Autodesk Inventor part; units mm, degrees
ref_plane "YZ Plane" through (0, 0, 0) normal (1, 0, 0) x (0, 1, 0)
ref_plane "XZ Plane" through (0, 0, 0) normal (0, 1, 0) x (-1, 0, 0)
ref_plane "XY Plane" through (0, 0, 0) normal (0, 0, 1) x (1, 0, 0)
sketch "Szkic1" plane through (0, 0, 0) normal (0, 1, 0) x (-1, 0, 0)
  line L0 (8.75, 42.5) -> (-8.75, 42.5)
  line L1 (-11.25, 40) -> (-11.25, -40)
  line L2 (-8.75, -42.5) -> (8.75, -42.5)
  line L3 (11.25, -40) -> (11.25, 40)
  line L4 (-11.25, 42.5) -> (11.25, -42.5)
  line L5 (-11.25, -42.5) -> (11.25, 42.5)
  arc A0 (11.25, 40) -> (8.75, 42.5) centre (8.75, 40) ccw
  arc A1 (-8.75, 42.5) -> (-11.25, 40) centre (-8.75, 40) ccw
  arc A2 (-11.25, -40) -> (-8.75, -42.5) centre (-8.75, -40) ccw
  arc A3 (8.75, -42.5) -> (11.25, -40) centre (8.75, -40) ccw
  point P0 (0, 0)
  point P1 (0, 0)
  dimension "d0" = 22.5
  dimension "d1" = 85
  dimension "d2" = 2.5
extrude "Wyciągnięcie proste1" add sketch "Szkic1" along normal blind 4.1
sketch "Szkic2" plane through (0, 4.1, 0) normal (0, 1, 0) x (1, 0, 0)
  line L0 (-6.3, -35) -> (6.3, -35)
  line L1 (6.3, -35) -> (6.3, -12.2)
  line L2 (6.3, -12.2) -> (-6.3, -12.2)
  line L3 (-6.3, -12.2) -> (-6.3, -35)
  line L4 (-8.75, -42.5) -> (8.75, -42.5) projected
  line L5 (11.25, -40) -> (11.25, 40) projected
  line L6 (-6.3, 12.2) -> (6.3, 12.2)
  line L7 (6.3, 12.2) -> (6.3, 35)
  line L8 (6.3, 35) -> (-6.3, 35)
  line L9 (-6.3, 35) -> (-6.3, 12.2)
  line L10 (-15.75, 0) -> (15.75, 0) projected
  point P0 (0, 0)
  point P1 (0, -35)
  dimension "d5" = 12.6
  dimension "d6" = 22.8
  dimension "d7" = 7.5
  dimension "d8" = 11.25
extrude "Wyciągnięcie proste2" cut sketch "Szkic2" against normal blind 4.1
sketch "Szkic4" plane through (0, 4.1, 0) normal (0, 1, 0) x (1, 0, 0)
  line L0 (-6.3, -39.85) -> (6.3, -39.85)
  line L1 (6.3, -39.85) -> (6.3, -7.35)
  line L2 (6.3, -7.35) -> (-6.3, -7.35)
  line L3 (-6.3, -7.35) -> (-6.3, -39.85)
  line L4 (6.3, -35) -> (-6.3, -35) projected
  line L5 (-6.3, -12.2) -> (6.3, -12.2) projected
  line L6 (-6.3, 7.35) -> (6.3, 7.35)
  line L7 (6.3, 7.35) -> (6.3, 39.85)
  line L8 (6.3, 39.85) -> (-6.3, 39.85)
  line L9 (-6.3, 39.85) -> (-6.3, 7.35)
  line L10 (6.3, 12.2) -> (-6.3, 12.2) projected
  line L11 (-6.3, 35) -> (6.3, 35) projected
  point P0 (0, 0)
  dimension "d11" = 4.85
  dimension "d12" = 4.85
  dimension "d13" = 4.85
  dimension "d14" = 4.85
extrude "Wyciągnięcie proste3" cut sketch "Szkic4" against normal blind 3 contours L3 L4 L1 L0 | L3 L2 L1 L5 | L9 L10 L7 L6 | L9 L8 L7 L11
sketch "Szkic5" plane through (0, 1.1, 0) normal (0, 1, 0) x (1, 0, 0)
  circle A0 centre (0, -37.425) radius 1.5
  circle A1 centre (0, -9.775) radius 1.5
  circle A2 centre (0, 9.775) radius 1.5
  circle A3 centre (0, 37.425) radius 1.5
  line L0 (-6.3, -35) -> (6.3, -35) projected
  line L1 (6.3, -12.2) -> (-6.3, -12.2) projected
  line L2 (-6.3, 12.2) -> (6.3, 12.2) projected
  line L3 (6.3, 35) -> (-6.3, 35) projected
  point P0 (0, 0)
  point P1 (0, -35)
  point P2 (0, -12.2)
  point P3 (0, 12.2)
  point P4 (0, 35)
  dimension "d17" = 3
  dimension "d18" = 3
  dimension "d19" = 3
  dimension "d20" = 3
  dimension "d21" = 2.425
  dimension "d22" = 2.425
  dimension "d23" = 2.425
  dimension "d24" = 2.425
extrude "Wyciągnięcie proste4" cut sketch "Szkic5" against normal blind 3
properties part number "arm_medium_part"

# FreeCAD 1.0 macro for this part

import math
import FreeCAD as App
import Part
import Sketcher

doc = App.newDocument("Part")
body = doc.addObject("PartDesign::Body", "Body")

# Sketch on XZ plane
sketch1 = doc.addObject("Sketcher::SketchObject", "Sketch")
body.addObject(sketch1)
sketch1.AttachmentSupport = (doc.XZ_Plane, [""])
sketch1.MapMode = "FlatFace"
sketch1.addGeometry([
    Part.LineSegment(App.Vector(-8.8, 42.5, 0), App.Vector(8.8, 42.5, 0)),  # 0
    Part.ArcOfCircle(Part.Circle(App.Vector(8.8, 40, 0), App.Vector(0, 0, 1), 2.5), math.radians(0), math.radians(90)),  # 1
    Part.LineSegment(App.Vector(11.2, 40, 0), App.Vector(11.2, -40, 0)),  # 2
    Part.ArcOfCircle(Part.Circle(App.Vector(8.8, -40, 0), App.Vector(0, 0, 1), 2.5), math.radians(-90), math.radians(0)),  # 3
    Part.LineSegment(App.Vector(8.8, -42.5, 0), App.Vector(-8.8, -42.5, 0)),  # 4
    Part.ArcOfCircle(Part.Circle(App.Vector(-8.8, -40, 0), App.Vector(0, 0, 1), 2.5), math.radians(180), math.radians(270)),  # 5
    Part.LineSegment(App.Vector(-11.2, -40, 0), App.Vector(-11.2, 40, 0)),  # 6
    Part.ArcOfCircle(Part.Circle(App.Vector(-8.8, 40, 0), App.Vector(0, 0, 1), 2.5), math.radians(90), math.radians(180)),  # 7
], False)
sketch1.addConstraint([
    Sketcher.Constraint("Tangent", 0, 2, 1, 2),
    Sketcher.Constraint("Tangent", 1, 1, 2, 1),
    Sketcher.Constraint("Tangent", 2, 2, 3, 2),
    Sketcher.Constraint("Tangent", 3, 1, 4, 1),
    Sketcher.Constraint("Tangent", 4, 2, 5, 2),
    Sketcher.Constraint("Tangent", 5, 1, 6, 1),
    Sketcher.Constraint("Tangent", 6, 2, 7, 2),
    Sketcher.Constraint("Tangent", 7, 1, 0, 1),
    Sketcher.Constraint("Horizontal", 0),
    Sketcher.Constraint("Vertical", 2),
    Sketcher.Constraint("Horizontal", 4),
    Sketcher.Constraint("Vertical", 6),
    Sketcher.Constraint("Equal", 1, 3),
    Sketcher.Constraint("Equal", 3, 5),
    Sketcher.Constraint("Equal", 5, 7),
    Sketcher.Constraint("Symmetric", 1, 3, 5, 3, -1, 1),
    Sketcher.Constraint("Radius", 1, 2.5),
    Sketcher.Constraint("DistanceX", 5, 1, 2, 2, 22.5),
    Sketcher.Constraint("DistanceY", 2, 2, 2, 1, 80.0),
])
pad1 = doc.addObject("PartDesign::Pad", "Pad")
body.addObject(pad1)
pad1.Profile = sketch1
pad1.Length = 4.1
pad1.Reversed = True

# Sketch on XZ plane
sketch2 = doc.addObject("Sketcher::SketchObject", "Sketch001")
body.addObject(sketch2)
sketch2.AttachmentSupport = (doc.XZ_Plane, [""])
sketch2.MapMode = "FlatFace"
sketch2.AttachmentOffset = App.Placement(App.Vector(0, 0, -4.1), App.Rotation())
sketch2.addGeometry([
    Part.LineSegment(App.Vector(-6, 12, 0), App.Vector(-6, 35, 0)),  # 0
    Part.LineSegment(App.Vector(-6, 35, 0), App.Vector(6, 35, 0)),  # 1
    Part.LineSegment(App.Vector(6, 35, 0), App.Vector(6, 12, 0)),  # 2
    Part.LineSegment(App.Vector(6, 12, 0), App.Vector(-6, 12, 0)),  # 3
    Part.LineSegment(App.Vector(-6, -35, 0), App.Vector(-6, -12, 0)),  # 4
    Part.LineSegment(App.Vector(-6, -12, 0), App.Vector(6, -12, 0)),  # 5
    Part.LineSegment(App.Vector(6, -12, 0), App.Vector(6, -35, 0)),  # 6
    Part.LineSegment(App.Vector(6, -35, 0), App.Vector(-6, -35, 0)),  # 7
], False)
sketch2.addConstraint([
    Sketcher.Constraint("Coincident", 0, 2, 1, 1),
    Sketcher.Constraint("Coincident", 1, 2, 2, 1),
    Sketcher.Constraint("Coincident", 2, 2, 3, 1),
    Sketcher.Constraint("Coincident", 3, 2, 0, 1),
    Sketcher.Constraint("Coincident", 4, 2, 5, 1),
    Sketcher.Constraint("Coincident", 5, 2, 6, 1),
    Sketcher.Constraint("Coincident", 6, 2, 7, 1),
    Sketcher.Constraint("Coincident", 7, 2, 4, 1),
    Sketcher.Constraint("Vertical", 0),
    Sketcher.Constraint("Horizontal", 1),
    Sketcher.Constraint("Vertical", 2),
    Sketcher.Constraint("Horizontal", 3),
    Sketcher.Constraint("Vertical", 4),
    Sketcher.Constraint("Horizontal", 5),
    Sketcher.Constraint("Vertical", 6),
    Sketcher.Constraint("Horizontal", 7),
    Sketcher.Constraint("Symmetric", 2, 2, 4, 2, -1, 1),
    Sketcher.Constraint("Symmetric", 0, 2, 6, 2, -1, 1),
    Sketcher.Constraint("Vertical", 3, 2, 4, 2),
    Sketcher.Constraint("DistanceX", 1, 1, 1, 2, 12.6),
    Sketcher.Constraint("DistanceY", 0, 1, 0, 2, 22.8),
    Sketcher.Constraint("DistanceY", -1, 1, 0, 2, 35.0),
])
pocket1 = doc.addObject("PartDesign::Pocket", "Pocket")
body.addObject(pocket1)
pocket1.Profile = sketch2
pocket1.Length = 4.1
pocket1.Reversed = True

# Sketch on XZ plane
sketch3 = doc.addObject("Sketcher::SketchObject", "Sketch002")
body.addObject(sketch3)
sketch3.AttachmentSupport = (doc.XZ_Plane, [""])
sketch3.MapMode = "FlatFace"
sketch3.AttachmentOffset = App.Placement(App.Vector(0, 0, -4.1), App.Rotation())
sketch3.addGeometry([
    Part.LineSegment(App.Vector(-6.3, 35, 0), App.Vector(-6.3, 39.9, 0)),  # 0
    Part.LineSegment(App.Vector(-6.3, 39.9, 0), App.Vector(6.3, 39.9, 0)),  # 1
    Part.LineSegment(App.Vector(6.3, 39.9, 0), App.Vector(6.3, 35, 0)),  # 2
    Part.LineSegment(App.Vector(6.3, 35, 0), App.Vector(-6.3, 35, 0)),  # 3
    Part.LineSegment(App.Vector(-6.3, 7.3, 0), App.Vector(-6.3, 12.2, 0)),  # 4
    Part.LineSegment(App.Vector(-6.3, 12.2, 0), App.Vector(6.3, 12.2, 0)),  # 5
    Part.LineSegment(App.Vector(6.3, 12.2, 0), App.Vector(6.3, 7.3, 0)),  # 6
    Part.LineSegment(App.Vector(6.3, 7.3, 0), App.Vector(-6.3, 7.3, 0)),  # 7
    Part.LineSegment(App.Vector(-6.3, -12.2, 0), App.Vector(-6.3, -7.3, 0)),  # 8
    Part.LineSegment(App.Vector(-6.3, -7.3, 0), App.Vector(6.3, -7.3, 0)),  # 9
    Part.LineSegment(App.Vector(6.3, -7.3, 0), App.Vector(6.3, -12.2, 0)),  # 10
    Part.LineSegment(App.Vector(6.3, -12.2, 0), App.Vector(-6.3, -12.2, 0)),  # 11
    Part.LineSegment(App.Vector(-6.3, -39.9, 0), App.Vector(-6.3, -35, 0)),  # 12
    Part.LineSegment(App.Vector(-6.3, -35, 0), App.Vector(6.3, -35, 0)),  # 13
    Part.LineSegment(App.Vector(6.3, -35, 0), App.Vector(6.3, -39.9, 0)),  # 14
    Part.LineSegment(App.Vector(6.3, -39.9, 0), App.Vector(-6.3, -39.9, 0)),  # 15
], False)
sketch3.addConstraint([
    Sketcher.Constraint("Coincident", 0, 2, 1, 1),
    Sketcher.Constraint("Coincident", 1, 2, 2, 1),
    Sketcher.Constraint("Coincident", 2, 2, 3, 1),
    Sketcher.Constraint("Coincident", 3, 2, 0, 1),
    Sketcher.Constraint("Coincident", 4, 2, 5, 1),
    Sketcher.Constraint("Coincident", 5, 2, 6, 1),
    Sketcher.Constraint("Coincident", 6, 2, 7, 1),
    Sketcher.Constraint("Coincident", 7, 2, 4, 1),
    Sketcher.Constraint("Coincident", 8, 2, 9, 1),
    Sketcher.Constraint("Coincident", 9, 2, 10, 1),
    Sketcher.Constraint("Coincident", 10, 2, 11, 1),
    Sketcher.Constraint("Coincident", 11, 2, 8, 1),
    Sketcher.Constraint("Coincident", 12, 2, 13, 1),
    Sketcher.Constraint("Coincident", 13, 2, 14, 1),
    Sketcher.Constraint("Coincident", 14, 2, 15, 1),
    Sketcher.Constraint("Coincident", 15, 2, 12, 1),
    Sketcher.Constraint("Vertical", 0),
    Sketcher.Constraint("Horizontal", 1),
    Sketcher.Constraint("Vertical", 2),
    Sketcher.Constraint("Horizontal", 3),
    Sketcher.Constraint("Vertical", 4),
    Sketcher.Constraint("Horizontal", 5),
    Sketcher.Constraint("Vertical", 6),
    Sketcher.Constraint("Horizontal", 7),
    Sketcher.Constraint("Vertical", 8),
    Sketcher.Constraint("Horizontal", 9),
    Sketcher.Constraint("Vertical", 10),
    Sketcher.Constraint("Horizontal", 11),
    Sketcher.Constraint("Vertical", 12),
    Sketcher.Constraint("Horizontal", 13),
    Sketcher.Constraint("Vertical", 14),
    Sketcher.Constraint("Horizontal", 15),
    Sketcher.Constraint("Symmetric", 6, 2, 8, 2, -1, 1),
    Sketcher.Constraint("Symmetric", 4, 2, 10, 2, -1, 1),
    Sketcher.Constraint("Symmetric", 2, 2, 12, 2, -1, 1),
    Sketcher.Constraint("Symmetric", 0, 2, 14, 2, -1, 1),
    Sketcher.Constraint("Vertical", 3, 2, 4, 2),
    Sketcher.Constraint("Vertical", 2, 2, 5, 2),
    Sketcher.Constraint("Vertical", 7, 2, 8, 2),
    Sketcher.Constraint("Equal", 2, 4),
    Sketcher.Constraint("DistanceY", 0, 1, 0, 2, 4.85),
    Sketcher.Constraint("DistanceX", 1, 1, 1, 2, 12.6),
    Sketcher.Constraint("DistanceY", -1, 1, 2, 2, 35.0),
    Sketcher.Constraint("DistanceY", -1, 1, 4, 2, 12.2),
])
pocket2 = doc.addObject("PartDesign::Pocket", "Pocket001")
body.addObject(pocket2)
pocket2.Profile = sketch3
pocket2.Length = 3
pocket2.Reversed = True

# Sketch on XZ plane
sketch4 = doc.addObject("Sketcher::SketchObject", "Sketch003")
body.addObject(sketch4)
sketch4.AttachmentSupport = (doc.XZ_Plane, [""])
sketch4.MapMode = "FlatFace"
sketch4.AttachmentOffset = App.Placement(App.Vector(0, 0, -1.1), App.Rotation())
sketch4.addGeometry([
    Part.Circle(App.Vector(0, 37.4, 0), App.Vector(0, 0, 1), 1.5),
    Part.Circle(App.Vector(0, 9.8, 0), App.Vector(0, 0, 1), 1.5),
    Part.Circle(App.Vector(0, -9.8, 0), App.Vector(0, 0, 1), 1.5),
    Part.Circle(App.Vector(0, -37.4, 0), App.Vector(0, 0, 1), 1.5),
], False)
sketch4.addConstraint([
    Sketcher.Constraint("Equal", 0, 1),
    Sketcher.Constraint("Equal", 1, 2),
    Sketcher.Constraint("Equal", 2, 3),
    Sketcher.Constraint("Symmetric", 1, 3, 2, 3, -1, 1),
    Sketcher.Constraint("Symmetric", 0, 3, 3, 3, -1, 1),
    Sketcher.Constraint("PointOnObject", 0, 3, -2),
    Sketcher.Constraint("PointOnObject", 1, 3, -2),
    Sketcher.Constraint("Diameter", 0, 3.0),
    Sketcher.Constraint("DistanceY", 2, 3, 0, 3, 47.2),
    Sketcher.Constraint("DistanceY", 1, 3, 0, 3, 27.65),
])
pocket3 = doc.addObject("PartDesign::Pocket", "Pocket002")
body.addObject(pocket3)
pocket3.Profile = sketch4
pocket3.Length = 3
pocket3.Reversed = True

doc.recompute()
